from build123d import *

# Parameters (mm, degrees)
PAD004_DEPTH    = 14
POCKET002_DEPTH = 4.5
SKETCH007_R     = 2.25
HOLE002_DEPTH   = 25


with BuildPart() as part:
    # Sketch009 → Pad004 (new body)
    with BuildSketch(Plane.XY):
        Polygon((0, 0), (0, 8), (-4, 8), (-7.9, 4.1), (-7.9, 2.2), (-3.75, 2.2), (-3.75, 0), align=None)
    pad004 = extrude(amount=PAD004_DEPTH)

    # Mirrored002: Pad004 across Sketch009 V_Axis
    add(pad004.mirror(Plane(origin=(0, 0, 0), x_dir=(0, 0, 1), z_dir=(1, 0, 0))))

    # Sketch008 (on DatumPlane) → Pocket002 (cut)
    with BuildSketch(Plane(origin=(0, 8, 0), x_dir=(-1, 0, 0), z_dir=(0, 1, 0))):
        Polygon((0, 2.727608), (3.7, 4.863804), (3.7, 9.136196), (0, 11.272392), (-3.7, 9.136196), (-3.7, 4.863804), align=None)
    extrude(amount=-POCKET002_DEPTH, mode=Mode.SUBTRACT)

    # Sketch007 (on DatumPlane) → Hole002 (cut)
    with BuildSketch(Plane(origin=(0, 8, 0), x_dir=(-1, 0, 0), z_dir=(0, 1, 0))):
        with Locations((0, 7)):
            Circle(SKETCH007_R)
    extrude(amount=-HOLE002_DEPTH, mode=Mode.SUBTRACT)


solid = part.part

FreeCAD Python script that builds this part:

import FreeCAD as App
import Part
import Sketcher
Q = App.Units.Quantity

doc = App.newDocument("Part")
body = doc.addObject("PartDesign::Body", "Body")

sketch1 = doc.addObject("Sketcher::SketchObject", "Sketch")
body.addObject(sketch1)
sketch1.AttachmentSupport = (doc.XY_Plane, [""])
sketch1.MapMode = "FlatFace"
sketch1.addGeometry([
    Part.LineSegment(App.Vector(0, 0, 0), App.Vector(0, 8, 0)),
    Part.LineSegment(App.Vector(0, 8, 0), App.Vector(-4, 8, 0)),
    Part.LineSegment(App.Vector(-4, 8, 0), App.Vector(-7.9, 4.1, 0)),
    Part.LineSegment(App.Vector(-7.9, 4.1, 0), App.Vector(-7.9, 2.2, 0)),
    Part.LineSegment(App.Vector(-7.9, 2.2, 0), App.Vector(-3.8, 2.2, 0)),
    Part.LineSegment(App.Vector(-3.8, 2.2, 0), App.Vector(-3.8, 0, 0)),
    Part.LineSegment(App.Vector(-3.8, 0, 0), App.Vector(0, 0, 0)),
], False)
sketch1.addConstraint([
    Sketcher.Constraint("Coincident", 0, 2, 1, 1),
    Sketcher.Constraint("Coincident", 1, 2, 2, 1),
    Sketcher.Constraint("Coincident", 2, 2, 3, 1),
    Sketcher.Constraint("Coincident", 3, 2, 4, 1),
    Sketcher.Constraint("Coincident", 4, 2, 5, 1),
    Sketcher.Constraint("Coincident", 5, 2, 6, 1),
    Sketcher.Constraint("Coincident", 6, 2, 0, 1),
    Sketcher.Constraint("Vertical", 0),
    Sketcher.Constraint("Horizontal", 1),
    Sketcher.Constraint("Vertical", 3),
    Sketcher.Constraint("Horizontal", 4),
    Sketcher.Constraint("Vertical", 5),
    Sketcher.Constraint("Horizontal", 6),
    Sketcher.Constraint("Coincident", 6, 2, -1, 1),
    Sketcher.Constraint("DistanceX", 1, 2, 1, 1, 4.0),
    Sketcher.Constraint("DistanceY", 0, 1, 0, 2, 8.0),
    Sketcher.Constraint("Angle", 2, Q("-135 deg")),
    Sketcher.Constraint("DistanceY", 3, 2, 3, 1, 1.9),
    Sketcher.Constraint("DistanceY", 5, 2, 5, 1, 2.2),
    Sketcher.Constraint("DistanceX", 4, 1, 4, 2, 4.15),
])
pad1 = doc.addObject("PartDesign::Pad", "Pad")
body.addObject(pad1)
pad1.Profile = sketch1
pad1.Length = 14
doc.recompute()

mirrored = doc.addObject("PartDesign::Mirrored", "Mirrored")
body.addObject(mirrored)
mirrored.Originals = [pad1]
mirrored.MirrorPlane = (doc.YZ_Plane, [""])
body.Tip = mirrored

sketch2 = doc.addObject("Sketcher::SketchObject", "Sketch001")
body.addObject(sketch2)
sketch2.AttachmentSupport = (doc.XZ_Plane, [""])
sketch2.MapMode = "FlatFace"
sketch2.AttachmentOffset = App.Placement(App.Vector(0, 0, -8), App.Rotation())
sketch2.addGeometry([
    Part.LineSegment(App.Vector(0, 2.7, 0), App.Vector(-3.7, 4.9, 0)),
    Part.LineSegment(App.Vector(-3.7, 4.9, 0), App.Vector(-3.7, 9.1, 0)),
    Part.LineSegment(App.Vector(-3.7, 9.1, 0), App.Vector(0, 11.3, 0)),
    Part.LineSegment(App.Vector(0, 11.3, 0), App.Vector(3.7, 9.1, 0)),
    Part.LineSegment(App.Vector(3.7, 9.1, 0), App.Vector(3.7, 4.9, 0)),
    Part.LineSegment(App.Vector(3.7, 4.9, 0), App.Vector(0, 2.7, 0)),
], False)
sketch2.addConstraint([
    Sketcher.Constraint("Coincident", 0, 2, 1, 1),
    Sketcher.Constraint("Coincident", 1, 2, 2, 1),
    Sketcher.Constraint("Coincident", 2, 2, 3, 1),
    Sketcher.Constraint("Coincident", 3, 2, 4, 1),
    Sketcher.Constraint("Coincident", 4, 2, 5, 1),
    Sketcher.Constraint("Coincident", 5, 2, 0, 1),
    Sketcher.Constraint("Vertical", 1),
    Sketcher.Constraint("Vertical", 4),
    Sketcher.Constraint("Symmetric", 1, 2, 3, 2, -2),
    Sketcher.Constraint("PointOnObject", 2, 2, -2),
    Sketcher.Constraint("PointOnObject", 5, 2, -2),
    Sketcher.Constraint("Parallel", 0, 3),
    Sketcher.Constraint("Parallel", 2, 5),
    Sketcher.Constraint("Angle", 0, Q("150 deg")),
    Sketcher.Constraint("DistanceX", 0, 2, -1, 1, 3.7),
    Sketcher.Constraint("DistanceY", 1, 1, 1, 2, 4.272392),
    Sketcher.Constraint("DistanceY", -1, 1, 5, 2, 2.727608),
])
pocket1 = doc.addObject("PartDesign::Pocket", "Pocket")
body.addObject(pocket1)
pocket1.Profile = sketch2
pocket1.Length = 4.5
pocket1.Reversed = True

sketch3 = doc.addObject("Sketcher::SketchObject", "Sketch002")
body.addObject(sketch3)
sketch3.AttachmentSupport = (doc.XZ_Plane, [""])
sketch3.MapMode = "FlatFace"
sketch3.AttachmentOffset = App.Placement(App.Vector(0, 0, -8), App.Rotation())
sketch3.addGeometry(Part.Circle(App.Vector(0, 7, 0), App.Vector(0, 0, 1), 2.2), False)
sketch3.addConstraint([
    Sketcher.Constraint("PointOnObject", 0, 3, -2),
    Sketcher.Constraint("Diameter", 0, 4.5),
    Sketcher.Constraint("DistanceY", -1, 1, 0, 3, 7.0),
])
pocket2 = doc.addObject("PartDesign::Pocket", "Pocket001")
body.addObject(pocket2)
pocket2.Profile = sketch3
pocket2.Length = 25
pocket2.Reversed = True

doc.recompute()
